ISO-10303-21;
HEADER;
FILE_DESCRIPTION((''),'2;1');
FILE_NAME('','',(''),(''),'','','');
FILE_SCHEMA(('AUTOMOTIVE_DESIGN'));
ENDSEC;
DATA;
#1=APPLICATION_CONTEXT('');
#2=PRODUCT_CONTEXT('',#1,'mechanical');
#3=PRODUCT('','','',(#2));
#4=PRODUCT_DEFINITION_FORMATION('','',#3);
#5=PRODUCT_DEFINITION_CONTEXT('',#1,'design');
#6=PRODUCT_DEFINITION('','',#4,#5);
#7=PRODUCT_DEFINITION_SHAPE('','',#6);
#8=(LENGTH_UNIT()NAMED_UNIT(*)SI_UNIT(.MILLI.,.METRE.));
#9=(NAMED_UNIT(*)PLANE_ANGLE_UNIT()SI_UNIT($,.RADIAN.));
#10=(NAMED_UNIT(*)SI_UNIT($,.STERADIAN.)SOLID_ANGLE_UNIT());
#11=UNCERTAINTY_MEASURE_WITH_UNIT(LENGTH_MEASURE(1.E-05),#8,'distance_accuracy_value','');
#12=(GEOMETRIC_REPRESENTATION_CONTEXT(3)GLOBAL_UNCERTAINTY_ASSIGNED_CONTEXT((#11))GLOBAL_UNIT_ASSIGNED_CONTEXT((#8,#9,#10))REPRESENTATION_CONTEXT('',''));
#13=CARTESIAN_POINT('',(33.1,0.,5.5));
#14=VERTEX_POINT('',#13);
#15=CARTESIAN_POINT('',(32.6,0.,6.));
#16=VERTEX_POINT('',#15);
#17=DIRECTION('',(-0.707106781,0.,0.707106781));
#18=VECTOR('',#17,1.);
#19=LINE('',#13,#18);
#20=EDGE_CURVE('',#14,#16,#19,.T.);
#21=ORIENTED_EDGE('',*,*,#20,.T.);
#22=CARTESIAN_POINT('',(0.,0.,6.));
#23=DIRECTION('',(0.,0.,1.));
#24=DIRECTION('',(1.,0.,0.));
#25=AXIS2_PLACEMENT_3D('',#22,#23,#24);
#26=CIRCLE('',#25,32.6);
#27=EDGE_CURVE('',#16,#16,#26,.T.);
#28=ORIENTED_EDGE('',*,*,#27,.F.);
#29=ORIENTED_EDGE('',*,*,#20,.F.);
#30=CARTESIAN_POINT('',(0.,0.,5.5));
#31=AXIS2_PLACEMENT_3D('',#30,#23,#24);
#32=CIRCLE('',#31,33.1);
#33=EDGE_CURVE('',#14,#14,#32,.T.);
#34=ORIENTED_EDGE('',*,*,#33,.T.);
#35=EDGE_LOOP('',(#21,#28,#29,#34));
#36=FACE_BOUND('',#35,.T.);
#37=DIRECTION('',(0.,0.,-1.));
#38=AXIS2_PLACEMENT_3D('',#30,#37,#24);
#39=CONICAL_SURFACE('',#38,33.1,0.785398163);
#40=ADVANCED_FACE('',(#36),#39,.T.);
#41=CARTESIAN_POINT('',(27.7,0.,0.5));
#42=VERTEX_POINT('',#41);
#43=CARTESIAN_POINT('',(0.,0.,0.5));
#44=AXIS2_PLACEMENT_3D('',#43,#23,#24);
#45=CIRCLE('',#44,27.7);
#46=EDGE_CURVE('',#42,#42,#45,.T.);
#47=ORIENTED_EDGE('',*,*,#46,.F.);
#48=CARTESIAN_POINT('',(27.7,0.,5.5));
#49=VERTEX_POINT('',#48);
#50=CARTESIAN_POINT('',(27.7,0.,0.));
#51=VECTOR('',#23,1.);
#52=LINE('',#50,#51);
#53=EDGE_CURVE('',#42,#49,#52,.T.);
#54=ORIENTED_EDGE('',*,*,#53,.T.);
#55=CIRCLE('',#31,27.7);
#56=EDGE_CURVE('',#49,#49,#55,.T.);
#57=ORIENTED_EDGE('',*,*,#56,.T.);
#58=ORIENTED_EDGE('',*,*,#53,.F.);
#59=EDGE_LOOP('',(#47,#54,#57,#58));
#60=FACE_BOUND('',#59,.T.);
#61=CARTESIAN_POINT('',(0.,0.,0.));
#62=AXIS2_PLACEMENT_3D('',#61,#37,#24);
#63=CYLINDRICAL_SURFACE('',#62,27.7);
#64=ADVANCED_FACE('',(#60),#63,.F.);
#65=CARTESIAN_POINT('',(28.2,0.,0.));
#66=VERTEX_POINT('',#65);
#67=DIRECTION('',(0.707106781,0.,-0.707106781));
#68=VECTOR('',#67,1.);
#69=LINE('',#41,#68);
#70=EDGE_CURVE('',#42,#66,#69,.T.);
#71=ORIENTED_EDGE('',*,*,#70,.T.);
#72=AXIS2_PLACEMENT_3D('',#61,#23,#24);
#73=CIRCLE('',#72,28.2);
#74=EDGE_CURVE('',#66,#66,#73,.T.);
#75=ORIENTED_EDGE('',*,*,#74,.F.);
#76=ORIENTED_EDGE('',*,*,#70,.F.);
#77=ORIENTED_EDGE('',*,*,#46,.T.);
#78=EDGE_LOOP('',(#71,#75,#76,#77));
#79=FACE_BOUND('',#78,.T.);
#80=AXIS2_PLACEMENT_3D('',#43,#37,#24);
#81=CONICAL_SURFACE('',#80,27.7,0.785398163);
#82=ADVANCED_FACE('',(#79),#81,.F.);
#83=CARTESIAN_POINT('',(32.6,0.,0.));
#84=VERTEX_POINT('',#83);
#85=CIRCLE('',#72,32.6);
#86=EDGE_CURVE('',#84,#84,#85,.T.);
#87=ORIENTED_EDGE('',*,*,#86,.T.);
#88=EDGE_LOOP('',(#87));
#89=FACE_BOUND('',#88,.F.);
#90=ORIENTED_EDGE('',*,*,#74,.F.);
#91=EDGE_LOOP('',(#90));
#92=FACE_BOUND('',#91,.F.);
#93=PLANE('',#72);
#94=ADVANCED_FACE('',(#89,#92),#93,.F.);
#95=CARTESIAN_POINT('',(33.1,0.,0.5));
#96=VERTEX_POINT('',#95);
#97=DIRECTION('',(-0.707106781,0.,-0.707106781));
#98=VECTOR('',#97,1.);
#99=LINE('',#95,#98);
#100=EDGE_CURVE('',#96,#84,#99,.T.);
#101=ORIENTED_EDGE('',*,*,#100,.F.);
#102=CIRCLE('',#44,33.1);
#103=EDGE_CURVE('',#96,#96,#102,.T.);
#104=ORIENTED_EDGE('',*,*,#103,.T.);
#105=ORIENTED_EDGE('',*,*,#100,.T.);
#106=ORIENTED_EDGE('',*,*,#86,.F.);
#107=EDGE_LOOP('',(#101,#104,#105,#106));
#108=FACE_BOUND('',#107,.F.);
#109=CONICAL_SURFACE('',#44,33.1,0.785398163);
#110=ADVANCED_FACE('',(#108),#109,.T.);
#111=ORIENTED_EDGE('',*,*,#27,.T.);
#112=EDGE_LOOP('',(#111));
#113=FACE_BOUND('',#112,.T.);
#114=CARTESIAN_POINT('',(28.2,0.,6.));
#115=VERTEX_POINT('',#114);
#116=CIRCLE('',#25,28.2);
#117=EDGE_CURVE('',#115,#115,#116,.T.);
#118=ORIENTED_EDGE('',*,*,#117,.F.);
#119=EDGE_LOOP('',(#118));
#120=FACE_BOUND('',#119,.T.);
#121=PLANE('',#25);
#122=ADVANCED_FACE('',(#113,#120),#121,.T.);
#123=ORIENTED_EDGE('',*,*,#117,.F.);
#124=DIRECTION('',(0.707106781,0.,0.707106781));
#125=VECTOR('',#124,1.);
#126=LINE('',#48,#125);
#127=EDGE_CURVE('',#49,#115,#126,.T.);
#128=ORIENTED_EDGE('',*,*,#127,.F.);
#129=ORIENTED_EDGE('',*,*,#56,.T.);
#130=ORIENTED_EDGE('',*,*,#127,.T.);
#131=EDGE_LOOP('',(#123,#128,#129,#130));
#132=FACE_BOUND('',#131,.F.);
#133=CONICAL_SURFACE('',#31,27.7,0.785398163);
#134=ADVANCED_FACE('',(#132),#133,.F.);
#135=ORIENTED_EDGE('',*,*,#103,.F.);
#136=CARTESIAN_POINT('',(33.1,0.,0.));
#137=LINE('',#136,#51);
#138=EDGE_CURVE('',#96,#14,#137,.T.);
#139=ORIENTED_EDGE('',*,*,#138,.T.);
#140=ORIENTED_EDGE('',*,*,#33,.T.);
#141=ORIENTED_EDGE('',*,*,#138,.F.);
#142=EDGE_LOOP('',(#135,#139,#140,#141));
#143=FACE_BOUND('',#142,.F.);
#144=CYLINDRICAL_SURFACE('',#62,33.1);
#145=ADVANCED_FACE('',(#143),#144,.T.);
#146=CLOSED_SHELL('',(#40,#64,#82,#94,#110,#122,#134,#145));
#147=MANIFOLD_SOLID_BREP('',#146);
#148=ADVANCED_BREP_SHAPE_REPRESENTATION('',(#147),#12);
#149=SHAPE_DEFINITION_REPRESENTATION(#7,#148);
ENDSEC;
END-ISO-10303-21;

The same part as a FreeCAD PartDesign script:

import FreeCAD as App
import Part
import Sketcher


def edges_at(feature, points):
    """Names of the edges that pass closest to the given points."""
    edges = feature.Shape.Edges
    near = lambda p: min(range(len(edges)), key=lambda i: edges[i].distToShape(Part.Vertex(*p))[0])
    return sorted({f"Edge{near(p) + 1}" for p in points})

doc = App.newDocument("Part")
body = doc.addObject("PartDesign::Body", "Body")

# Sketch on XY plane
sketch1 = body.newObject("Sketcher::SketchObject", "Sketch")
sketch1.AttachmentSupport = (doc.getObject("XY_Plane"), [""])
sketch1.MapMode = "FlatFace"
sketch1.addGeometry([
    Part.Circle(App.Vector(0, 0, 0), App.Vector(0, 0, 1), 33),
    Part.Circle(App.Vector(0, 0, 0), App.Vector(0, 0, 1), 28),
], False)
sketch1.addConstraint([
    Sketcher.Constraint("Coincident", 0, 3, -1, 1),
    Sketcher.Constraint("Coincident", 1, 3, -1, 1),
    Sketcher.Constraint("Diameter", 0, 66.2),
    Sketcher.Constraint("Diameter", 1, 55.4),
])
pad1 = body.newObject("PartDesign::Pad", "Pad")
pad1.Profile = sketch1
pad1.Length = 6
doc.recompute()

chamfer = body.newObject("PartDesign::Chamfer", "Chamfer")
chamfer.Base = (pad1, edges_at(pad1, [
    (-27.7, 0, 6),
    (-27.7, 0, 0),
    (-33.1, 0, 6),
    (-33.1, 0, 0),
]))
chamfer.Size = 0.5

doc.recompute()
